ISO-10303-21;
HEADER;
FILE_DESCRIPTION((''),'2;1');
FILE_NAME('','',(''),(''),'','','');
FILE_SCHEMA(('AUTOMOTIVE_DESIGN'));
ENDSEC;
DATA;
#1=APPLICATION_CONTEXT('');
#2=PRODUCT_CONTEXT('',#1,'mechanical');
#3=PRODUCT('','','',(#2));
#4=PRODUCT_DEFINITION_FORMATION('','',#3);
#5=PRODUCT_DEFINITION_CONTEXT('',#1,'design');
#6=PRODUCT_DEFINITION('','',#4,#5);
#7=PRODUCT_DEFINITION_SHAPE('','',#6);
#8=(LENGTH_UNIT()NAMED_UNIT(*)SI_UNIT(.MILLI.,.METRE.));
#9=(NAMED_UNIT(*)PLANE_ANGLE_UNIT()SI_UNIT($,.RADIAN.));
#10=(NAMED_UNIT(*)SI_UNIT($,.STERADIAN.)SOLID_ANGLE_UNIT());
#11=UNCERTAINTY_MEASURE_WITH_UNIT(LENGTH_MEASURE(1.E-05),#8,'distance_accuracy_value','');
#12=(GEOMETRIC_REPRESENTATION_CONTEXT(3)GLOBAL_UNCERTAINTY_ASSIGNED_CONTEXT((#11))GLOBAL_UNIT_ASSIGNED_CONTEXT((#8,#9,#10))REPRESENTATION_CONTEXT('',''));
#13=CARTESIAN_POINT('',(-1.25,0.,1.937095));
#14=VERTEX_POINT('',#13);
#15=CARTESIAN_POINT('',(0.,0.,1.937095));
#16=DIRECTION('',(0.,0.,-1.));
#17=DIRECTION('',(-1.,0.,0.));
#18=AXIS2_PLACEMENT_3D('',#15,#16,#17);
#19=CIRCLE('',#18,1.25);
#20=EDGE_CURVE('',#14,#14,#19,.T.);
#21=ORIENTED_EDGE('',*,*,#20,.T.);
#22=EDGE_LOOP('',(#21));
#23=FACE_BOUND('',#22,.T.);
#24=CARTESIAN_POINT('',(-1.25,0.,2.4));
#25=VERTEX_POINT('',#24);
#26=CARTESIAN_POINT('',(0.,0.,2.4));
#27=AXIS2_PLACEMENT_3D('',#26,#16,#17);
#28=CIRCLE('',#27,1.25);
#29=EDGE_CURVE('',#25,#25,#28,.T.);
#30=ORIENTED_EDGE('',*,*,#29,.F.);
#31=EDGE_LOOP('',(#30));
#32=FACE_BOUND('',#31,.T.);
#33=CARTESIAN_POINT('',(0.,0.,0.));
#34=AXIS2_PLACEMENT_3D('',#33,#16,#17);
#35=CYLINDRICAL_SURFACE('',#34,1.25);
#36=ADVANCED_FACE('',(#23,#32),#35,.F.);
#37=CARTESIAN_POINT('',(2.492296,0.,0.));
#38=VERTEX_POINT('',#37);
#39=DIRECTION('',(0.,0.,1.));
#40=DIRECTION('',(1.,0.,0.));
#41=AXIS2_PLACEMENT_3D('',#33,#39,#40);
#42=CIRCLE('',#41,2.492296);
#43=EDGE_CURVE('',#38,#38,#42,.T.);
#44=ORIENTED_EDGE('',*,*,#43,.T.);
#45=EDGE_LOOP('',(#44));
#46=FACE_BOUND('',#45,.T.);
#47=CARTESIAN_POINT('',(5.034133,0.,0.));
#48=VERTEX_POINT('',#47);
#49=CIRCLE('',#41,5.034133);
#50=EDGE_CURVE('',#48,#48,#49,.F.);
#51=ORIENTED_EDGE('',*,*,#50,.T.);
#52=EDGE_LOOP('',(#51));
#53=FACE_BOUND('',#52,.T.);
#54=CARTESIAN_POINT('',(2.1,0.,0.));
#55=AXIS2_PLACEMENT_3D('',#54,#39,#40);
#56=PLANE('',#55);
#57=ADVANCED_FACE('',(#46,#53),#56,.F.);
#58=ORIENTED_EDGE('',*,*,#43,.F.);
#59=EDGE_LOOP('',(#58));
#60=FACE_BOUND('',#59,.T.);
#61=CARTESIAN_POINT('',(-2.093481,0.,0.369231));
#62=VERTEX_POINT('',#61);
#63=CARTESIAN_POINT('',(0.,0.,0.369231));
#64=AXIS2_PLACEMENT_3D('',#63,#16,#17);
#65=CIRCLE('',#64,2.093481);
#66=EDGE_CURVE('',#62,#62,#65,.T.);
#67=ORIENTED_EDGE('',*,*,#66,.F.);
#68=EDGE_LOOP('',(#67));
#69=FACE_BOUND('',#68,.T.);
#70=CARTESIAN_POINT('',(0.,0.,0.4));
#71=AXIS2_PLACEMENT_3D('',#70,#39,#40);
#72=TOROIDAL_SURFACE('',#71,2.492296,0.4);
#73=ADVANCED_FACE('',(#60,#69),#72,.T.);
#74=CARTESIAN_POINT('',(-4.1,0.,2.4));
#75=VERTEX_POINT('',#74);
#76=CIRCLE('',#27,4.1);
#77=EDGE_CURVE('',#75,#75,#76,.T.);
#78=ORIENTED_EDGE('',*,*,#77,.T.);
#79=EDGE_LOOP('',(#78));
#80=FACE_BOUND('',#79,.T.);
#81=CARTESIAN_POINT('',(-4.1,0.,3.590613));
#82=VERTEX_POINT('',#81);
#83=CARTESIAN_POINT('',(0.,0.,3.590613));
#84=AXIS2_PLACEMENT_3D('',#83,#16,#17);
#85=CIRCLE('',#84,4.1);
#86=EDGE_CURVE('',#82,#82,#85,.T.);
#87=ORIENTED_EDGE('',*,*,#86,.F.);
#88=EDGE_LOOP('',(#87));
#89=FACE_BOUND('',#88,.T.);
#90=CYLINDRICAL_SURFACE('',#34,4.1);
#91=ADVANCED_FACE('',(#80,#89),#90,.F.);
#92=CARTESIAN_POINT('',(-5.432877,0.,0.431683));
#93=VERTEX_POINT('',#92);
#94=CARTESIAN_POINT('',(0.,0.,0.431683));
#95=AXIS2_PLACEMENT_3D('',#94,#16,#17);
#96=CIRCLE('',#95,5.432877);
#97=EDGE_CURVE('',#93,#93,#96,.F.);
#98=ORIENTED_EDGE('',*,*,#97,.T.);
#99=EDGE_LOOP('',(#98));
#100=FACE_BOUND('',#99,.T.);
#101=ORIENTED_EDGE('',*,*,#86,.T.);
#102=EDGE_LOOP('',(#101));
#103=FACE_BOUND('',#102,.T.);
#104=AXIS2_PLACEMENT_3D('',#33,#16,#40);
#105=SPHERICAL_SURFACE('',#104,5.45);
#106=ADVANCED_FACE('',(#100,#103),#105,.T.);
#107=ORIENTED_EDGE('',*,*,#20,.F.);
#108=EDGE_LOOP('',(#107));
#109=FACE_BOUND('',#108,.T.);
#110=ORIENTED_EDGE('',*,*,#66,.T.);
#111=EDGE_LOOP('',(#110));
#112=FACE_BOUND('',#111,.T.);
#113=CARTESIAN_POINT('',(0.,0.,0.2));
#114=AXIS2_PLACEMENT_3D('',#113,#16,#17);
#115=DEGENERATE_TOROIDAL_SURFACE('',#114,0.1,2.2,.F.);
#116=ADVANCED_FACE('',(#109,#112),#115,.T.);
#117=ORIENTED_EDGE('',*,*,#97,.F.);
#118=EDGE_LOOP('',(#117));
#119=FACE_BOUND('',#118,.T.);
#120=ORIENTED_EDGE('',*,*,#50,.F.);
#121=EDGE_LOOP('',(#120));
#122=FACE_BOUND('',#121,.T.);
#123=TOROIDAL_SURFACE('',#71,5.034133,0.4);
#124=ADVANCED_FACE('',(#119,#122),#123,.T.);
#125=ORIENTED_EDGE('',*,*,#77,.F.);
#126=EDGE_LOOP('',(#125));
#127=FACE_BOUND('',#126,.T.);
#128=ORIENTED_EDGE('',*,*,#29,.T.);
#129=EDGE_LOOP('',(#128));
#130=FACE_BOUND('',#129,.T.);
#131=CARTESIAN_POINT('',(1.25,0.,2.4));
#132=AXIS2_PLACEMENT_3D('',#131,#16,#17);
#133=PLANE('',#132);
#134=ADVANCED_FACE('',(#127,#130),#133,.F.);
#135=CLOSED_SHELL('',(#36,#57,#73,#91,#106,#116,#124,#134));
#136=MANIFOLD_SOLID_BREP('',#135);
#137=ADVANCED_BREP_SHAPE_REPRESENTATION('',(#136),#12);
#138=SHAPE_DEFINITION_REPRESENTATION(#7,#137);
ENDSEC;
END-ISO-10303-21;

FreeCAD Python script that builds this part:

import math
import FreeCAD as App
import Part
import Sketcher


def edges_at(feature, points):
    """Names of the edges that pass closest to the given points."""
    edges = feature.Shape.Edges
    near = lambda p: min(range(len(edges)), key=lambda i: edges[i].distToShape(Part.Vertex(*p))[0])
    return sorted({f"Edge{near(p) + 1}" for p in points})

doc = App.newDocument("Part")
body = doc.addObject("PartDesign::Body", "Body")

sketch1 = body.newObject("Sketcher::SketchObject", "Sketch")
sketch1.AttachmentSupport = (doc.getObject("XZ_Plane"), [""])
sketch1.MapMode = "FlatFace"
sketch1.addGeometry(Part.LineSegment(App.Vector(5.45, 0, 0), App.Vector(2.1, 0, 0)), False)
sketch1.addGeometry(Part.LineSegment(App.Vector(2.1, 0, 0), App.Vector(2.1, 0.2, 0)), False)
sketch1.addGeometry(Part.ArcOfCircle(Part.Circle(App.Vector(-0.1, 0.2, 0), App.Vector(0, 0, 1), 2.2), math.radians(0), math.radians(52)), False)
sketch1.addGeometry(Part.LineSegment(App.Vector(1.25, 1.94, 0), App.Vector(1.25, 2.4, 0)), False)
sketch1.addGeometry(Part.LineSegment(App.Vector(1.25, 2.4, 0), App.Vector(4.1, 2.4, 0)), False)
sketch1.addGeometry(Part.LineSegment(App.Vector(4.1, 2.4, 0), App.Vector(4.1, 3.59, 0)), False)
sketch1.addGeometry(Part.ArcOfCircle(Part.Circle(App.Vector(0, 0, 0), App.Vector(0, 0, 1), 5.45), math.radians(0), math.radians(41)), False)
sketch1.addConstraint(Sketcher.Constraint("Coincident", 0, 2, 1, 1))
sketch1.addConstraint(Sketcher.Constraint("Tangent", 1, 2, 2, 1))
sketch1.addConstraint(Sketcher.Constraint("Coincident", 2, 2, 3, 1))
sketch1.addConstraint(Sketcher.Constraint("Coincident", 3, 2, 4, 1))
sketch1.addConstraint(Sketcher.Constraint("Coincident", 4, 2, 5, 1))
sketch1.addConstraint(Sketcher.Constraint("Coincident", 5, 2, 6, 2))
sketch1.addConstraint(Sketcher.Constraint("Coincident", 6, 1, 0, 1))
sketch1.addConstraint(Sketcher.Constraint("Horizontal", 0))
sketch1.addConstraint(Sketcher.Constraint("Vertical", 1))
sketch1.addConstraint(Sketcher.Constraint("Vertical", 3))
sketch1.addConstraint(Sketcher.Constraint("Horizontal", 4))
sketch1.addConstraint(Sketcher.Constraint("Vertical", 5))
sketch1.addConstraint(Sketcher.Constraint("Coincident", 6, 3, -1, 1))
sketch1.addConstraint(Sketcher.Constraint("PointOnObject", 0, 2, -1))
sketch1.addConstraint(Sketcher.Constraint("Radius", 2, 2.2))
sketch1.addConstraint(Sketcher.Constraint("Radius", 6, 5.45))
sketch1.addConstraint(Sketcher.Constraint("DistanceY", 1, 1, 1, 2, 0.2))
sketch1.addConstraint(Sketcher.Constraint("DistanceX", 1, 2, 4, 2, 2.0))
sketch1.addConstraint(Sketcher.Constraint("DistanceX", 0, 2, 0, 1, 3.35))
sketch1.addConstraint(Sketcher.Constraint("DistanceX", 4, 1, 4, 2, 2.85))
sketch1.addConstraint(Sketcher.Constraint("DistanceY", -1, 1, 3, 2, 2.4))
revolution = body.newObject("PartDesign::Revolution", "Revolution")
revolution.Profile = sketch1
revolution.ReferenceAxis = (sketch1, ["V_Axis"])
revolution.Angle = 360
doc.recompute()

fillet = body.newObject("PartDesign::Fillet", "Fillet")
fillet.Base = (revolution, edges_at(revolution, [(-5.45, 0, 0), (-2.1, 0, 0)]))
fillet.Radius = 0.4

doc.recompute()
